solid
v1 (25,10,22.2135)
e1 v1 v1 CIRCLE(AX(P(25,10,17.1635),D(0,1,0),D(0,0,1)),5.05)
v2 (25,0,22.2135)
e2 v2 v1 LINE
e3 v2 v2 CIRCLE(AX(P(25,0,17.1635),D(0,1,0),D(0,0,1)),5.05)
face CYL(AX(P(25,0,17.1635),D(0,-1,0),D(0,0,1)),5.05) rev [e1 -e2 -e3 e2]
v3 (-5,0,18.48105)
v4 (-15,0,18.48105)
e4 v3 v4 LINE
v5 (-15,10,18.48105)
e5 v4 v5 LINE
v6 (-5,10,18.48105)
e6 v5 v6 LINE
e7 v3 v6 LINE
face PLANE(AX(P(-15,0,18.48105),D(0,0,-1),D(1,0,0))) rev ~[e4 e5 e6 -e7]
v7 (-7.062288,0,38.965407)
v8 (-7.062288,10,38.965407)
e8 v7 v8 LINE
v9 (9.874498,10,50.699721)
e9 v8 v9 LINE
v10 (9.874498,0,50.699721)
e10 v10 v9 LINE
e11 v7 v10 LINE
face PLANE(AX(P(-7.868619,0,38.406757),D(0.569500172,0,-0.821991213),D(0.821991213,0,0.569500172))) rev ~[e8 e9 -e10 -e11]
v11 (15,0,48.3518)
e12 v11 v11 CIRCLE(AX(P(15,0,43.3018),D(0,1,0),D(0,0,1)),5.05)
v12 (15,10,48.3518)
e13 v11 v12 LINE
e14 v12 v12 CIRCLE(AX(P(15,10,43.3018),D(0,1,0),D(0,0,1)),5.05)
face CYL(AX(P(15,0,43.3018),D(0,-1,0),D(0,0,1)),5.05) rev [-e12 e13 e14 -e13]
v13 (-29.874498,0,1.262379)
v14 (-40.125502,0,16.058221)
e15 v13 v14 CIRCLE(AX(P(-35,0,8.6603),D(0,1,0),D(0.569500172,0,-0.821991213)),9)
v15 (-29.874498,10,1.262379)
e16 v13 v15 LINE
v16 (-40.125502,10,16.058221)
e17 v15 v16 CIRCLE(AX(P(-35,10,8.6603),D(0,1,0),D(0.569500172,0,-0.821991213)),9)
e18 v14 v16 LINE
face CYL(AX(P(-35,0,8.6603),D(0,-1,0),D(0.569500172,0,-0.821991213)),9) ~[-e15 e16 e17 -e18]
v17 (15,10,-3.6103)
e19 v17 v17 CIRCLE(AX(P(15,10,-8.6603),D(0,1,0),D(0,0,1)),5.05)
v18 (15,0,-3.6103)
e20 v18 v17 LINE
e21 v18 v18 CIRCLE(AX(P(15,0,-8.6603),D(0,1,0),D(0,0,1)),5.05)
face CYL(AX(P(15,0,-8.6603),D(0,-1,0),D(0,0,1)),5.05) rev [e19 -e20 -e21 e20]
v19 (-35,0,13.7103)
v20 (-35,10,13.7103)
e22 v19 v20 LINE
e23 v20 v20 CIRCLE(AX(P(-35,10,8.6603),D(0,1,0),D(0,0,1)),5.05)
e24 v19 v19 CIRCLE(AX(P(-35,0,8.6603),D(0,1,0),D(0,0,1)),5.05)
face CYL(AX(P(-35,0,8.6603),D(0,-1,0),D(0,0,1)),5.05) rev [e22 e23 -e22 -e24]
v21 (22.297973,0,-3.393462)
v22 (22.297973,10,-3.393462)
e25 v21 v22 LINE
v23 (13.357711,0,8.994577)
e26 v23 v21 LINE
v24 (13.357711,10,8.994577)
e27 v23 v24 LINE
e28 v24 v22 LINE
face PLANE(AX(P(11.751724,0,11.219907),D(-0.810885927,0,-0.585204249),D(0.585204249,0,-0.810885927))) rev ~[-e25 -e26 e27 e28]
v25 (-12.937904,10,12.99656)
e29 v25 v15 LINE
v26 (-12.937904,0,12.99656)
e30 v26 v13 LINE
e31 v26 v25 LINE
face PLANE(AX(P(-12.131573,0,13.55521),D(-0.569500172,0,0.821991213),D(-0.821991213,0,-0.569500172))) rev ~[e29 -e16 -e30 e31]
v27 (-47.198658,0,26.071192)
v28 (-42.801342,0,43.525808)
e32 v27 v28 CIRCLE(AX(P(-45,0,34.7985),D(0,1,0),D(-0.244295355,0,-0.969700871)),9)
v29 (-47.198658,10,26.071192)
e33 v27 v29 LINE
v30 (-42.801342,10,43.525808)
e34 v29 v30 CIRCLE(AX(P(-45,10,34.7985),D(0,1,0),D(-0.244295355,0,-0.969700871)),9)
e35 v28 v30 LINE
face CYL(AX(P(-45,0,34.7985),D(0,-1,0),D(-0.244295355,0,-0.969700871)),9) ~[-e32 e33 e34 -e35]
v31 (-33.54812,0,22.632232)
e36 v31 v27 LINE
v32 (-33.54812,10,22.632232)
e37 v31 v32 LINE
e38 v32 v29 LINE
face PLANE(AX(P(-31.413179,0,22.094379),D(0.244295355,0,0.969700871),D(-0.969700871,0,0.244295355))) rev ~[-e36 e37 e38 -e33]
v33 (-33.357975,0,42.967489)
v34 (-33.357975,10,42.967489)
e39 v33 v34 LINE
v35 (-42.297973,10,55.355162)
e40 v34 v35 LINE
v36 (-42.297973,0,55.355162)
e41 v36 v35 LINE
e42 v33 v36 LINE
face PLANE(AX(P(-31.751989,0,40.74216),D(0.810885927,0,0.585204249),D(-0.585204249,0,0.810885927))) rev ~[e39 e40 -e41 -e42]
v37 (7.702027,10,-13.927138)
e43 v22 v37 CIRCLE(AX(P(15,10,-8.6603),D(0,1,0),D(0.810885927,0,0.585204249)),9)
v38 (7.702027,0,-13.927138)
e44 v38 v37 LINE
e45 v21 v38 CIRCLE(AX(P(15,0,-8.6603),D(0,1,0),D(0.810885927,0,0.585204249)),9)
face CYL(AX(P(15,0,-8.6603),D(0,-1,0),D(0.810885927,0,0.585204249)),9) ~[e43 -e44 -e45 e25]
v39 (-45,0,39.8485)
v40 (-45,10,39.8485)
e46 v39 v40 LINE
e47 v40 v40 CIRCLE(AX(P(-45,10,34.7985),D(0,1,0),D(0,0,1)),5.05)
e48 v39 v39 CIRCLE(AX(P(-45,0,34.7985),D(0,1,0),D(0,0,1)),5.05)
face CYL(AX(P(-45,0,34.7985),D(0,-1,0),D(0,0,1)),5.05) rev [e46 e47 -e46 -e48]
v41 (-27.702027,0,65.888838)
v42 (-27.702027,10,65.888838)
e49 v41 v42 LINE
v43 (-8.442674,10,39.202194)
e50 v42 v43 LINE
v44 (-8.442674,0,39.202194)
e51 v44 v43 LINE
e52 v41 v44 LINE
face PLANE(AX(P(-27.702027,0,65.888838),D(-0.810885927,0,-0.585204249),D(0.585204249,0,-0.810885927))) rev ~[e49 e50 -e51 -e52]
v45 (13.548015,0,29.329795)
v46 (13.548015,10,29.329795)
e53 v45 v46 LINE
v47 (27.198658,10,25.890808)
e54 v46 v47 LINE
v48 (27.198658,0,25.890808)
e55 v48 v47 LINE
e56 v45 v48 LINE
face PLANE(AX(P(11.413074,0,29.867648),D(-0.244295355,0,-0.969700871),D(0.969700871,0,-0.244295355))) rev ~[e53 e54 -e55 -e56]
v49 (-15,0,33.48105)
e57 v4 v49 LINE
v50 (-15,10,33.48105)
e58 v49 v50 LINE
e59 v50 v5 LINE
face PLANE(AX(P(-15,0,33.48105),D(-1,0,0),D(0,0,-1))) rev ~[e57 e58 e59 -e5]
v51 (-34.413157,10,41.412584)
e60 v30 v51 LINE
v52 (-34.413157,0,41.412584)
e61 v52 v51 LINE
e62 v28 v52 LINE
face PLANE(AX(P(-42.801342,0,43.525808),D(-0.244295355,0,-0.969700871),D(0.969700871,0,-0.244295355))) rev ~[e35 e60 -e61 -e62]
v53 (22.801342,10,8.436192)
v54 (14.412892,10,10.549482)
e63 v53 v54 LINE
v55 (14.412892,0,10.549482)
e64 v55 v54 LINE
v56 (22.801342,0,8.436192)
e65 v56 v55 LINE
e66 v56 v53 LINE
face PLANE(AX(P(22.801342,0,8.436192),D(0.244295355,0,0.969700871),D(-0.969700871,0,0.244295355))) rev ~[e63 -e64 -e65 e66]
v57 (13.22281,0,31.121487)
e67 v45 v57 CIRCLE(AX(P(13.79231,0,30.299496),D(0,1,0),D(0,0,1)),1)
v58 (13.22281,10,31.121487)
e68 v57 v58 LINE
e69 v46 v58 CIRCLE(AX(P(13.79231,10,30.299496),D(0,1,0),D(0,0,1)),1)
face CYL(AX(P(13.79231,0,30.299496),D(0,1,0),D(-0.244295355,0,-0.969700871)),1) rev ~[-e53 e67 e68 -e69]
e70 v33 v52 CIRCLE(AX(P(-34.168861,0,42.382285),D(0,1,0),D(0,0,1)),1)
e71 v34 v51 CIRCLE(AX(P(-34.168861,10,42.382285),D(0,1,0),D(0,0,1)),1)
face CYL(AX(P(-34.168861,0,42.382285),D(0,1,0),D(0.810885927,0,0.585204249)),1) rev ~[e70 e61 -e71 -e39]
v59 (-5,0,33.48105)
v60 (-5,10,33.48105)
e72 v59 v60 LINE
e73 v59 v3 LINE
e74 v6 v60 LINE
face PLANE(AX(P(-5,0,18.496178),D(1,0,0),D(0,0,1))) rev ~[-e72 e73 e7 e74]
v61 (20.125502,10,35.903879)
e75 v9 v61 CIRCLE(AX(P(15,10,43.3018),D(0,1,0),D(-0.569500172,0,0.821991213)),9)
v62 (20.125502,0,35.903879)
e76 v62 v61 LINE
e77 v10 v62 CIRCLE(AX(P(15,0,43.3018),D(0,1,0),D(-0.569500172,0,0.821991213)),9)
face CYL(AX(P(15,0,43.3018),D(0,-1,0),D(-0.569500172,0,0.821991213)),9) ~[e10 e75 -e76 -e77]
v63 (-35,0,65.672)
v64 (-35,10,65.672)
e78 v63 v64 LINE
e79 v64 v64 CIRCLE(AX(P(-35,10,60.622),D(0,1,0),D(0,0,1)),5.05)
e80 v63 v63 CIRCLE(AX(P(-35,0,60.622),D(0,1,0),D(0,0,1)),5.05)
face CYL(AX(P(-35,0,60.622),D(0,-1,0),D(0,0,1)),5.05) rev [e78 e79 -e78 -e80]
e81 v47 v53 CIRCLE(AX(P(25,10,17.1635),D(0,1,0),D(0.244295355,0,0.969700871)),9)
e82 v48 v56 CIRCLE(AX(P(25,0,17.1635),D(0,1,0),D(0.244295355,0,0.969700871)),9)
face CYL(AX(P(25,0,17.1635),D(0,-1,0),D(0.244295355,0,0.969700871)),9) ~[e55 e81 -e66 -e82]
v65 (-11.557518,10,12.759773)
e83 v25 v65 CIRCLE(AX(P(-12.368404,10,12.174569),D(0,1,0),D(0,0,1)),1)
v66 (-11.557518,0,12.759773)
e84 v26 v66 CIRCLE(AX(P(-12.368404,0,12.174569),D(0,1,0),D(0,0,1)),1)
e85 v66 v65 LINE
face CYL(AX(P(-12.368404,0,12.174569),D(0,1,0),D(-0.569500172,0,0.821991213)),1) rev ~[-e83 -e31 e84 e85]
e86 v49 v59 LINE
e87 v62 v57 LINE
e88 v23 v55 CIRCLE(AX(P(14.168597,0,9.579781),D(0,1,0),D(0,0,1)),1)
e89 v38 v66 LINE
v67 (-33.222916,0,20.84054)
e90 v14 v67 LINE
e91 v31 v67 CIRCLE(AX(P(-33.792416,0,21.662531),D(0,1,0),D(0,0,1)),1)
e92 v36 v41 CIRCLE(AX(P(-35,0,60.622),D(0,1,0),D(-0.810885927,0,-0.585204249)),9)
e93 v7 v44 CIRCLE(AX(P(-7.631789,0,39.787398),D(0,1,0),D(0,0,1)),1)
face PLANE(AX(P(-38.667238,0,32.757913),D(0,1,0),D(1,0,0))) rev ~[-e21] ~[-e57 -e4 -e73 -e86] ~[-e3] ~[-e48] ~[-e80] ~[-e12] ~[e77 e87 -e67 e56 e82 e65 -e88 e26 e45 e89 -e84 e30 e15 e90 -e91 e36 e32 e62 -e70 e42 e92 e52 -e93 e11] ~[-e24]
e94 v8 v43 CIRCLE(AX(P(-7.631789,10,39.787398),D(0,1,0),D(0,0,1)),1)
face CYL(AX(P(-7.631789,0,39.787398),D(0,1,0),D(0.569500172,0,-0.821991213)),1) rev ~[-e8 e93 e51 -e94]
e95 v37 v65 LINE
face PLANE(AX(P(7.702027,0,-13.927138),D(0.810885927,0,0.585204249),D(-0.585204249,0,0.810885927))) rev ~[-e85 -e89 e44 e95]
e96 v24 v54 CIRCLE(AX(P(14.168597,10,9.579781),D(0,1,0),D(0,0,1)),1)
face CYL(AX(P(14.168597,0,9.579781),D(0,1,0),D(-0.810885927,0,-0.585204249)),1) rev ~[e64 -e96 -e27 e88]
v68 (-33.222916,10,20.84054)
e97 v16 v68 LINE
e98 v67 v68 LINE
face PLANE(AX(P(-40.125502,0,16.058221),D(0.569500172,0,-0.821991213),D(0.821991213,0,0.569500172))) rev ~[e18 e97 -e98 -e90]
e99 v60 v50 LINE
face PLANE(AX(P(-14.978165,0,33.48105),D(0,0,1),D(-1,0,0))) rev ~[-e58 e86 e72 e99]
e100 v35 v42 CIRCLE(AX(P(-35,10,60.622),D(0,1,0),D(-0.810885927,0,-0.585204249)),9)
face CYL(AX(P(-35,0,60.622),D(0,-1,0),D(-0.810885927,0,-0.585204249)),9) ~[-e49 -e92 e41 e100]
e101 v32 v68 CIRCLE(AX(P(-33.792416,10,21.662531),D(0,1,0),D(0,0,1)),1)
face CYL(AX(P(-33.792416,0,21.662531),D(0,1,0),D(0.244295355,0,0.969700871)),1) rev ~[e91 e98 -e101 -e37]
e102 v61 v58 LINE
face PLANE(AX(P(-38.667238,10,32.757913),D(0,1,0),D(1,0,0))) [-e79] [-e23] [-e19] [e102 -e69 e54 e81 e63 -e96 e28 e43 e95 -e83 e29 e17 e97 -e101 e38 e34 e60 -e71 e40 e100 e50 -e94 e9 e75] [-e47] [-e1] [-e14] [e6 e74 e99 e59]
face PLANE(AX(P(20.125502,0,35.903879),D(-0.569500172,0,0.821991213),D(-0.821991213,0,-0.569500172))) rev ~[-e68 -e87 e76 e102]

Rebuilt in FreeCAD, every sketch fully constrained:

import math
import FreeCAD as App
import Part
import Sketcher


def edges_at(feature, points):
    """Names of the edges that pass closest to the given points."""
    edges = feature.Shape.Edges
    near = lambda p: min(range(len(edges)), key=lambda i: edges[i].distToShape(Part.Vertex(*p))[0])
    return sorted({f"Edge{near(p) + 1}" for p in points})


def add_polygon(sketch, points):
    """Adds a closed chain of lines whose ends are joined by coincident constraints."""
    first, n = sketch.GeometryCount, len(points)
    for a, b in zip(points, points[1:] + points[:1]):
        sketch.addGeometry(Part.LineSegment(App.Vector(*a, 0), App.Vector(*b, 0)), False)
    for i in range(n):
        sketch.addConstraint(Sketcher.Constraint("Coincident", first + i, 2, first + (i + 1) % n, 1))

doc = App.newDocument("Part")
body = doc.addObject("PartDesign::Body", "Body")

sketch1 = body.newObject("Sketcher::SketchObject", "Sketch")
sketch1.AttachmentSupport = (doc.getObject("XZ_Plane"), [""])
sketch1.MapMode = "FlatFace"
sketch1.addGeometry(Part.LineSegment(App.Vector(8, -14, 0), App.Vector(-12, 14, 0)), False)
sketch1.addGeometry(Part.LineSegment(App.Vector(-12, 14, 0), App.Vector(-30, 1, 0)), False)
sketch1.addGeometry(Part.ArcOfCircle(Part.Circle(App.Vector(-35, 9, 0), App.Vector(0, 0, 1), 9), math.radians(125), math.radians(305)), False)
sketch1.addGeometry(Part.LineSegment(App.Vector(-40, 16, 0), App.Vector(-31, 22, 0)), False)
sketch1.addGeometry(Part.LineSegment(App.Vector(-31, 22, 0), App.Vector(-47, 26, 0)), False)
sketch1.addGeometry(Part.ArcOfCircle(Part.Circle(App.Vector(-45, 35, 0), App.Vector(0, 0, 1), 9), math.radians(76), math.radians(256)), False)
sketch1.addGeometry(Part.LineSegment(App.Vector(-43, 44, 0), App.Vector(-32, 41, 0)), False)
sketch1.addGeometry(Part.LineSegment(App.Vector(-32, 41, 0), App.Vector(-42, 55, 0)), False)
sketch1.addGeometry(Part.ArcOfCircle(Part.Circle(App.Vector(-35, 61, 0), App.Vector(0, 0, 1), 9), math.radians(36), math.radians(216)), False)
sketch1.addGeometry(Part.LineSegment(App.Vector(-28, 66, 0), App.Vector(-8, 38, 0)), False)
sketch1.addGeometry(Part.LineSegment(App.Vector(-8, 38, 0), App.Vector(10, 51, 0)), False)
sketch1.addGeometry(Part.ArcOfCircle(Part.Circle(App.Vector(15, 43, 0), App.Vector(0, 0, 1), 9), math.radians(-55), math.radians(125)), False)
sketch1.addGeometry(Part.LineSegment(App.Vector(20, 36, 0), App.Vector(11, 30, 0)), False)
sketch1.addGeometry(Part.LineSegment(App.Vector(11, 30, 0), App.Vector(27, 26, 0)), False)
sketch1.addGeometry(Part.ArcOfCircle(Part.Circle(App.Vector(25, 17, 0), App.Vector(0, 0, 1), 9), math.radians(-104), math.radians(76)), False)
sketch1.addGeometry(Part.LineSegment(App.Vector(23, 8, 0), App.Vector(12, 11, 0)), False)
sketch1.addGeometry(Part.LineSegment(App.Vector(12, 11, 0), App.Vector(22, -3, 0)), False)
sketch1.addGeometry(Part.ArcOfCircle(Part.Circle(App.Vector(15, -9, 0), App.Vector(0, 0, 1), 9), math.radians(-144), math.radians(36)), False)
add_polygon(sketch1, [(-5, 33), (-15, 33), (-15, 18), (-5, 18)])
sketch1.addGeometry(Part.Circle(App.Vector(15, -9, 0), App.Vector(0, 0, 1), 5), False)
sketch1.addGeometry(Part.Circle(App.Vector(25, 17, 0), App.Vector(0, 0, 1), 5), False)
sketch1.addGeometry(Part.Circle(App.Vector(-45, 35, 0), App.Vector(0, 0, 1), 5), False)
sketch1.addGeometry(Part.Circle(App.Vector(-35, 61, 0), App.Vector(0, 0, 1), 5), False)
sketch1.addGeometry(Part.Circle(App.Vector(15, 43, 0), App.Vector(0, 0, 1), 5), False)
sketch1.addGeometry(Part.Circle(App.Vector(-35, 9, 0), App.Vector(0, 0, 1), 5), False)
sketch1.addConstraint([
    Sketcher.Constraint("Coincident", 0, 2, 1, 1),
    Sketcher.Constraint("Tangent", 1, 2, 2, 2),
    Sketcher.Constraint("Tangent", 2, 1, 3, 1),
    Sketcher.Constraint("Coincident", 3, 2, 4, 1),
    Sketcher.Constraint("Tangent", 4, 2, 5, 2),
    Sketcher.Constraint("Tangent", 5, 1, 6, 1),
    Sketcher.Constraint("Coincident", 6, 2, 7, 1),
    Sketcher.Constraint("Tangent", 7, 2, 8, 2),
    Sketcher.Constraint("Tangent", 8, 1, 9, 1),
    Sketcher.Constraint("Coincident", 9, 2, 10, 1),
    Sketcher.Constraint("Tangent", 10, 2, 11, 2),
    Sketcher.Constraint("Tangent", 11, 1, 12, 1),
    Sketcher.Constraint("Coincident", 12, 2, 13, 1),
    Sketcher.Constraint("Tangent", 13, 2, 14, 2),
    Sketcher.Constraint("Tangent", 14, 1, 15, 1),
    Sketcher.Constraint("Coincident", 15, 2, 16, 1),
    Sketcher.Constraint("Tangent", 16, 2, 17, 2),
    Sketcher.Constraint("Tangent", 17, 1, 0, 1),
    Sketcher.Constraint("Horizontal", 18),
    Sketcher.Constraint("Vertical", 19),
    Sketcher.Constraint("Horizontal", 20),
    Sketcher.Constraint("Vertical", 21),
    Sketcher.Constraint("Coincident", 22, 3, 17, 3),
    Sketcher.Constraint("Coincident", 23, 3, 14, 3),
    Sketcher.Constraint("Coincident", 24, 3, 5, 3),
    Sketcher.Constraint("Coincident", 25, 3, 8, 3),
    Sketcher.Constraint("Coincident", 26, 3, 11, 3),
    Sketcher.Constraint("Coincident", 27, 3, 2, 3),
    Sketcher.Constraint("Equal", 2, 5),
    Sketcher.Constraint("Equal", 5, 8),
    Sketcher.Constraint("Equal", 8, 11),
    Sketcher.Constraint("Equal", 11, 14),
    Sketcher.Constraint("Equal", 14, 17),
    Sketcher.Constraint("Equal", 22, 23),
    Sketcher.Constraint("Equal", 23, 24),
    Sketcher.Constraint("Equal", 24, 25),
    Sketcher.Constraint("Equal", 25, 26),
    Sketcher.Constraint("Equal", 26, 27),
    Sketcher.Constraint("Parallel", 1, 3),
    Sketcher.Constraint("Parallel", 4, 6),
    Sketcher.Constraint("Parallel", 0, 7),
    Sketcher.Constraint("Parallel", 7, 9),
    Sketcher.Constraint("Parallel", 3, 10),
    Sketcher.Constraint("Parallel", 10, 12),
    Sketcher.Constraint("Parallel", 6, 13),
    Sketcher.Constraint("Parallel", 13, 15),
    Sketcher.Constraint("Parallel", 9, 16),
    Sketcher.Constraint("Vertical", 2, 3, 8, 3),
    Sketcher.Constraint("Vertical", 11, 3, 17, 3),
    Sketcher.Constraint("Radius", 2, 9.0),
    Sketcher.Constraint("Diameter", 22, 10.1),
    Sketcher.Constraint("DistanceX", 18, 2, 18, 1, 10.0),
    Sketcher.Constraint("DistanceY", 19, 2, 19, 1, 15.0),
    Sketcher.Constraint("DistanceX", 2, 3, -1, 1, 35.0),
    Sketcher.Constraint("DistanceX", 5, 3, -1, 1, 45.0),
    Sketcher.Constraint("DistanceX", -1, 1, 11, 3, 15.0),
    Sketcher.Constraint("DistanceX", -1, 1, 14, 3, 25.0),
    Sketcher.Constraint("DistanceX", 18, 2, -1, 1, 15.0),
    Sketcher.Constraint("DistanceY", -1, 1, 8, 3, 60.622),
    Sketcher.Constraint("DistanceY", 14, 3, 5, 3, 17.635),
    Sketcher.Constraint("DistanceY", 6, 2, 7, 2, 14.613002),
    Sketcher.Constraint("Distance", 1, 21.585298),
    Sketcher.Constraint("Distance", 6, 11.3946),
    Sketcher.Constraint("DistanceY", -1, 1, 2, 3, 8.6603),
    Sketcher.Constraint("DistanceY", -1, 1, 5, 3, 34.7985),
    Sketcher.Constraint("DistanceY", -1, 1, 11, 3, 43.3018),
    Sketcher.Constraint("DistanceY", 17, 3, -1, 1, 8.6603),
    Sketcher.Constraint("DistanceY", -1, 1, 18, 2, 33.48105),
])
pad1 = body.newObject("PartDesign::Pad", "Pad")
pad1.Profile = sketch1
pad1.Length = 10
pad1.Reversed = True
doc.recompute()

fillet = body.newObject("PartDesign::Fillet", "Fillet")
fillet.Base = (pad1, edges_at(pad1, [
    (-31.752, 5, 40.742),
    (-31.413, 5, 22.094),
    (-12.132, 5, 13.555),
    (11.752, 5, 11.22),
    (11.413, 5, 29.868),
    (-7.869, 5, 38.407),
]))
fillet.Radius = 1

doc.recompute()
